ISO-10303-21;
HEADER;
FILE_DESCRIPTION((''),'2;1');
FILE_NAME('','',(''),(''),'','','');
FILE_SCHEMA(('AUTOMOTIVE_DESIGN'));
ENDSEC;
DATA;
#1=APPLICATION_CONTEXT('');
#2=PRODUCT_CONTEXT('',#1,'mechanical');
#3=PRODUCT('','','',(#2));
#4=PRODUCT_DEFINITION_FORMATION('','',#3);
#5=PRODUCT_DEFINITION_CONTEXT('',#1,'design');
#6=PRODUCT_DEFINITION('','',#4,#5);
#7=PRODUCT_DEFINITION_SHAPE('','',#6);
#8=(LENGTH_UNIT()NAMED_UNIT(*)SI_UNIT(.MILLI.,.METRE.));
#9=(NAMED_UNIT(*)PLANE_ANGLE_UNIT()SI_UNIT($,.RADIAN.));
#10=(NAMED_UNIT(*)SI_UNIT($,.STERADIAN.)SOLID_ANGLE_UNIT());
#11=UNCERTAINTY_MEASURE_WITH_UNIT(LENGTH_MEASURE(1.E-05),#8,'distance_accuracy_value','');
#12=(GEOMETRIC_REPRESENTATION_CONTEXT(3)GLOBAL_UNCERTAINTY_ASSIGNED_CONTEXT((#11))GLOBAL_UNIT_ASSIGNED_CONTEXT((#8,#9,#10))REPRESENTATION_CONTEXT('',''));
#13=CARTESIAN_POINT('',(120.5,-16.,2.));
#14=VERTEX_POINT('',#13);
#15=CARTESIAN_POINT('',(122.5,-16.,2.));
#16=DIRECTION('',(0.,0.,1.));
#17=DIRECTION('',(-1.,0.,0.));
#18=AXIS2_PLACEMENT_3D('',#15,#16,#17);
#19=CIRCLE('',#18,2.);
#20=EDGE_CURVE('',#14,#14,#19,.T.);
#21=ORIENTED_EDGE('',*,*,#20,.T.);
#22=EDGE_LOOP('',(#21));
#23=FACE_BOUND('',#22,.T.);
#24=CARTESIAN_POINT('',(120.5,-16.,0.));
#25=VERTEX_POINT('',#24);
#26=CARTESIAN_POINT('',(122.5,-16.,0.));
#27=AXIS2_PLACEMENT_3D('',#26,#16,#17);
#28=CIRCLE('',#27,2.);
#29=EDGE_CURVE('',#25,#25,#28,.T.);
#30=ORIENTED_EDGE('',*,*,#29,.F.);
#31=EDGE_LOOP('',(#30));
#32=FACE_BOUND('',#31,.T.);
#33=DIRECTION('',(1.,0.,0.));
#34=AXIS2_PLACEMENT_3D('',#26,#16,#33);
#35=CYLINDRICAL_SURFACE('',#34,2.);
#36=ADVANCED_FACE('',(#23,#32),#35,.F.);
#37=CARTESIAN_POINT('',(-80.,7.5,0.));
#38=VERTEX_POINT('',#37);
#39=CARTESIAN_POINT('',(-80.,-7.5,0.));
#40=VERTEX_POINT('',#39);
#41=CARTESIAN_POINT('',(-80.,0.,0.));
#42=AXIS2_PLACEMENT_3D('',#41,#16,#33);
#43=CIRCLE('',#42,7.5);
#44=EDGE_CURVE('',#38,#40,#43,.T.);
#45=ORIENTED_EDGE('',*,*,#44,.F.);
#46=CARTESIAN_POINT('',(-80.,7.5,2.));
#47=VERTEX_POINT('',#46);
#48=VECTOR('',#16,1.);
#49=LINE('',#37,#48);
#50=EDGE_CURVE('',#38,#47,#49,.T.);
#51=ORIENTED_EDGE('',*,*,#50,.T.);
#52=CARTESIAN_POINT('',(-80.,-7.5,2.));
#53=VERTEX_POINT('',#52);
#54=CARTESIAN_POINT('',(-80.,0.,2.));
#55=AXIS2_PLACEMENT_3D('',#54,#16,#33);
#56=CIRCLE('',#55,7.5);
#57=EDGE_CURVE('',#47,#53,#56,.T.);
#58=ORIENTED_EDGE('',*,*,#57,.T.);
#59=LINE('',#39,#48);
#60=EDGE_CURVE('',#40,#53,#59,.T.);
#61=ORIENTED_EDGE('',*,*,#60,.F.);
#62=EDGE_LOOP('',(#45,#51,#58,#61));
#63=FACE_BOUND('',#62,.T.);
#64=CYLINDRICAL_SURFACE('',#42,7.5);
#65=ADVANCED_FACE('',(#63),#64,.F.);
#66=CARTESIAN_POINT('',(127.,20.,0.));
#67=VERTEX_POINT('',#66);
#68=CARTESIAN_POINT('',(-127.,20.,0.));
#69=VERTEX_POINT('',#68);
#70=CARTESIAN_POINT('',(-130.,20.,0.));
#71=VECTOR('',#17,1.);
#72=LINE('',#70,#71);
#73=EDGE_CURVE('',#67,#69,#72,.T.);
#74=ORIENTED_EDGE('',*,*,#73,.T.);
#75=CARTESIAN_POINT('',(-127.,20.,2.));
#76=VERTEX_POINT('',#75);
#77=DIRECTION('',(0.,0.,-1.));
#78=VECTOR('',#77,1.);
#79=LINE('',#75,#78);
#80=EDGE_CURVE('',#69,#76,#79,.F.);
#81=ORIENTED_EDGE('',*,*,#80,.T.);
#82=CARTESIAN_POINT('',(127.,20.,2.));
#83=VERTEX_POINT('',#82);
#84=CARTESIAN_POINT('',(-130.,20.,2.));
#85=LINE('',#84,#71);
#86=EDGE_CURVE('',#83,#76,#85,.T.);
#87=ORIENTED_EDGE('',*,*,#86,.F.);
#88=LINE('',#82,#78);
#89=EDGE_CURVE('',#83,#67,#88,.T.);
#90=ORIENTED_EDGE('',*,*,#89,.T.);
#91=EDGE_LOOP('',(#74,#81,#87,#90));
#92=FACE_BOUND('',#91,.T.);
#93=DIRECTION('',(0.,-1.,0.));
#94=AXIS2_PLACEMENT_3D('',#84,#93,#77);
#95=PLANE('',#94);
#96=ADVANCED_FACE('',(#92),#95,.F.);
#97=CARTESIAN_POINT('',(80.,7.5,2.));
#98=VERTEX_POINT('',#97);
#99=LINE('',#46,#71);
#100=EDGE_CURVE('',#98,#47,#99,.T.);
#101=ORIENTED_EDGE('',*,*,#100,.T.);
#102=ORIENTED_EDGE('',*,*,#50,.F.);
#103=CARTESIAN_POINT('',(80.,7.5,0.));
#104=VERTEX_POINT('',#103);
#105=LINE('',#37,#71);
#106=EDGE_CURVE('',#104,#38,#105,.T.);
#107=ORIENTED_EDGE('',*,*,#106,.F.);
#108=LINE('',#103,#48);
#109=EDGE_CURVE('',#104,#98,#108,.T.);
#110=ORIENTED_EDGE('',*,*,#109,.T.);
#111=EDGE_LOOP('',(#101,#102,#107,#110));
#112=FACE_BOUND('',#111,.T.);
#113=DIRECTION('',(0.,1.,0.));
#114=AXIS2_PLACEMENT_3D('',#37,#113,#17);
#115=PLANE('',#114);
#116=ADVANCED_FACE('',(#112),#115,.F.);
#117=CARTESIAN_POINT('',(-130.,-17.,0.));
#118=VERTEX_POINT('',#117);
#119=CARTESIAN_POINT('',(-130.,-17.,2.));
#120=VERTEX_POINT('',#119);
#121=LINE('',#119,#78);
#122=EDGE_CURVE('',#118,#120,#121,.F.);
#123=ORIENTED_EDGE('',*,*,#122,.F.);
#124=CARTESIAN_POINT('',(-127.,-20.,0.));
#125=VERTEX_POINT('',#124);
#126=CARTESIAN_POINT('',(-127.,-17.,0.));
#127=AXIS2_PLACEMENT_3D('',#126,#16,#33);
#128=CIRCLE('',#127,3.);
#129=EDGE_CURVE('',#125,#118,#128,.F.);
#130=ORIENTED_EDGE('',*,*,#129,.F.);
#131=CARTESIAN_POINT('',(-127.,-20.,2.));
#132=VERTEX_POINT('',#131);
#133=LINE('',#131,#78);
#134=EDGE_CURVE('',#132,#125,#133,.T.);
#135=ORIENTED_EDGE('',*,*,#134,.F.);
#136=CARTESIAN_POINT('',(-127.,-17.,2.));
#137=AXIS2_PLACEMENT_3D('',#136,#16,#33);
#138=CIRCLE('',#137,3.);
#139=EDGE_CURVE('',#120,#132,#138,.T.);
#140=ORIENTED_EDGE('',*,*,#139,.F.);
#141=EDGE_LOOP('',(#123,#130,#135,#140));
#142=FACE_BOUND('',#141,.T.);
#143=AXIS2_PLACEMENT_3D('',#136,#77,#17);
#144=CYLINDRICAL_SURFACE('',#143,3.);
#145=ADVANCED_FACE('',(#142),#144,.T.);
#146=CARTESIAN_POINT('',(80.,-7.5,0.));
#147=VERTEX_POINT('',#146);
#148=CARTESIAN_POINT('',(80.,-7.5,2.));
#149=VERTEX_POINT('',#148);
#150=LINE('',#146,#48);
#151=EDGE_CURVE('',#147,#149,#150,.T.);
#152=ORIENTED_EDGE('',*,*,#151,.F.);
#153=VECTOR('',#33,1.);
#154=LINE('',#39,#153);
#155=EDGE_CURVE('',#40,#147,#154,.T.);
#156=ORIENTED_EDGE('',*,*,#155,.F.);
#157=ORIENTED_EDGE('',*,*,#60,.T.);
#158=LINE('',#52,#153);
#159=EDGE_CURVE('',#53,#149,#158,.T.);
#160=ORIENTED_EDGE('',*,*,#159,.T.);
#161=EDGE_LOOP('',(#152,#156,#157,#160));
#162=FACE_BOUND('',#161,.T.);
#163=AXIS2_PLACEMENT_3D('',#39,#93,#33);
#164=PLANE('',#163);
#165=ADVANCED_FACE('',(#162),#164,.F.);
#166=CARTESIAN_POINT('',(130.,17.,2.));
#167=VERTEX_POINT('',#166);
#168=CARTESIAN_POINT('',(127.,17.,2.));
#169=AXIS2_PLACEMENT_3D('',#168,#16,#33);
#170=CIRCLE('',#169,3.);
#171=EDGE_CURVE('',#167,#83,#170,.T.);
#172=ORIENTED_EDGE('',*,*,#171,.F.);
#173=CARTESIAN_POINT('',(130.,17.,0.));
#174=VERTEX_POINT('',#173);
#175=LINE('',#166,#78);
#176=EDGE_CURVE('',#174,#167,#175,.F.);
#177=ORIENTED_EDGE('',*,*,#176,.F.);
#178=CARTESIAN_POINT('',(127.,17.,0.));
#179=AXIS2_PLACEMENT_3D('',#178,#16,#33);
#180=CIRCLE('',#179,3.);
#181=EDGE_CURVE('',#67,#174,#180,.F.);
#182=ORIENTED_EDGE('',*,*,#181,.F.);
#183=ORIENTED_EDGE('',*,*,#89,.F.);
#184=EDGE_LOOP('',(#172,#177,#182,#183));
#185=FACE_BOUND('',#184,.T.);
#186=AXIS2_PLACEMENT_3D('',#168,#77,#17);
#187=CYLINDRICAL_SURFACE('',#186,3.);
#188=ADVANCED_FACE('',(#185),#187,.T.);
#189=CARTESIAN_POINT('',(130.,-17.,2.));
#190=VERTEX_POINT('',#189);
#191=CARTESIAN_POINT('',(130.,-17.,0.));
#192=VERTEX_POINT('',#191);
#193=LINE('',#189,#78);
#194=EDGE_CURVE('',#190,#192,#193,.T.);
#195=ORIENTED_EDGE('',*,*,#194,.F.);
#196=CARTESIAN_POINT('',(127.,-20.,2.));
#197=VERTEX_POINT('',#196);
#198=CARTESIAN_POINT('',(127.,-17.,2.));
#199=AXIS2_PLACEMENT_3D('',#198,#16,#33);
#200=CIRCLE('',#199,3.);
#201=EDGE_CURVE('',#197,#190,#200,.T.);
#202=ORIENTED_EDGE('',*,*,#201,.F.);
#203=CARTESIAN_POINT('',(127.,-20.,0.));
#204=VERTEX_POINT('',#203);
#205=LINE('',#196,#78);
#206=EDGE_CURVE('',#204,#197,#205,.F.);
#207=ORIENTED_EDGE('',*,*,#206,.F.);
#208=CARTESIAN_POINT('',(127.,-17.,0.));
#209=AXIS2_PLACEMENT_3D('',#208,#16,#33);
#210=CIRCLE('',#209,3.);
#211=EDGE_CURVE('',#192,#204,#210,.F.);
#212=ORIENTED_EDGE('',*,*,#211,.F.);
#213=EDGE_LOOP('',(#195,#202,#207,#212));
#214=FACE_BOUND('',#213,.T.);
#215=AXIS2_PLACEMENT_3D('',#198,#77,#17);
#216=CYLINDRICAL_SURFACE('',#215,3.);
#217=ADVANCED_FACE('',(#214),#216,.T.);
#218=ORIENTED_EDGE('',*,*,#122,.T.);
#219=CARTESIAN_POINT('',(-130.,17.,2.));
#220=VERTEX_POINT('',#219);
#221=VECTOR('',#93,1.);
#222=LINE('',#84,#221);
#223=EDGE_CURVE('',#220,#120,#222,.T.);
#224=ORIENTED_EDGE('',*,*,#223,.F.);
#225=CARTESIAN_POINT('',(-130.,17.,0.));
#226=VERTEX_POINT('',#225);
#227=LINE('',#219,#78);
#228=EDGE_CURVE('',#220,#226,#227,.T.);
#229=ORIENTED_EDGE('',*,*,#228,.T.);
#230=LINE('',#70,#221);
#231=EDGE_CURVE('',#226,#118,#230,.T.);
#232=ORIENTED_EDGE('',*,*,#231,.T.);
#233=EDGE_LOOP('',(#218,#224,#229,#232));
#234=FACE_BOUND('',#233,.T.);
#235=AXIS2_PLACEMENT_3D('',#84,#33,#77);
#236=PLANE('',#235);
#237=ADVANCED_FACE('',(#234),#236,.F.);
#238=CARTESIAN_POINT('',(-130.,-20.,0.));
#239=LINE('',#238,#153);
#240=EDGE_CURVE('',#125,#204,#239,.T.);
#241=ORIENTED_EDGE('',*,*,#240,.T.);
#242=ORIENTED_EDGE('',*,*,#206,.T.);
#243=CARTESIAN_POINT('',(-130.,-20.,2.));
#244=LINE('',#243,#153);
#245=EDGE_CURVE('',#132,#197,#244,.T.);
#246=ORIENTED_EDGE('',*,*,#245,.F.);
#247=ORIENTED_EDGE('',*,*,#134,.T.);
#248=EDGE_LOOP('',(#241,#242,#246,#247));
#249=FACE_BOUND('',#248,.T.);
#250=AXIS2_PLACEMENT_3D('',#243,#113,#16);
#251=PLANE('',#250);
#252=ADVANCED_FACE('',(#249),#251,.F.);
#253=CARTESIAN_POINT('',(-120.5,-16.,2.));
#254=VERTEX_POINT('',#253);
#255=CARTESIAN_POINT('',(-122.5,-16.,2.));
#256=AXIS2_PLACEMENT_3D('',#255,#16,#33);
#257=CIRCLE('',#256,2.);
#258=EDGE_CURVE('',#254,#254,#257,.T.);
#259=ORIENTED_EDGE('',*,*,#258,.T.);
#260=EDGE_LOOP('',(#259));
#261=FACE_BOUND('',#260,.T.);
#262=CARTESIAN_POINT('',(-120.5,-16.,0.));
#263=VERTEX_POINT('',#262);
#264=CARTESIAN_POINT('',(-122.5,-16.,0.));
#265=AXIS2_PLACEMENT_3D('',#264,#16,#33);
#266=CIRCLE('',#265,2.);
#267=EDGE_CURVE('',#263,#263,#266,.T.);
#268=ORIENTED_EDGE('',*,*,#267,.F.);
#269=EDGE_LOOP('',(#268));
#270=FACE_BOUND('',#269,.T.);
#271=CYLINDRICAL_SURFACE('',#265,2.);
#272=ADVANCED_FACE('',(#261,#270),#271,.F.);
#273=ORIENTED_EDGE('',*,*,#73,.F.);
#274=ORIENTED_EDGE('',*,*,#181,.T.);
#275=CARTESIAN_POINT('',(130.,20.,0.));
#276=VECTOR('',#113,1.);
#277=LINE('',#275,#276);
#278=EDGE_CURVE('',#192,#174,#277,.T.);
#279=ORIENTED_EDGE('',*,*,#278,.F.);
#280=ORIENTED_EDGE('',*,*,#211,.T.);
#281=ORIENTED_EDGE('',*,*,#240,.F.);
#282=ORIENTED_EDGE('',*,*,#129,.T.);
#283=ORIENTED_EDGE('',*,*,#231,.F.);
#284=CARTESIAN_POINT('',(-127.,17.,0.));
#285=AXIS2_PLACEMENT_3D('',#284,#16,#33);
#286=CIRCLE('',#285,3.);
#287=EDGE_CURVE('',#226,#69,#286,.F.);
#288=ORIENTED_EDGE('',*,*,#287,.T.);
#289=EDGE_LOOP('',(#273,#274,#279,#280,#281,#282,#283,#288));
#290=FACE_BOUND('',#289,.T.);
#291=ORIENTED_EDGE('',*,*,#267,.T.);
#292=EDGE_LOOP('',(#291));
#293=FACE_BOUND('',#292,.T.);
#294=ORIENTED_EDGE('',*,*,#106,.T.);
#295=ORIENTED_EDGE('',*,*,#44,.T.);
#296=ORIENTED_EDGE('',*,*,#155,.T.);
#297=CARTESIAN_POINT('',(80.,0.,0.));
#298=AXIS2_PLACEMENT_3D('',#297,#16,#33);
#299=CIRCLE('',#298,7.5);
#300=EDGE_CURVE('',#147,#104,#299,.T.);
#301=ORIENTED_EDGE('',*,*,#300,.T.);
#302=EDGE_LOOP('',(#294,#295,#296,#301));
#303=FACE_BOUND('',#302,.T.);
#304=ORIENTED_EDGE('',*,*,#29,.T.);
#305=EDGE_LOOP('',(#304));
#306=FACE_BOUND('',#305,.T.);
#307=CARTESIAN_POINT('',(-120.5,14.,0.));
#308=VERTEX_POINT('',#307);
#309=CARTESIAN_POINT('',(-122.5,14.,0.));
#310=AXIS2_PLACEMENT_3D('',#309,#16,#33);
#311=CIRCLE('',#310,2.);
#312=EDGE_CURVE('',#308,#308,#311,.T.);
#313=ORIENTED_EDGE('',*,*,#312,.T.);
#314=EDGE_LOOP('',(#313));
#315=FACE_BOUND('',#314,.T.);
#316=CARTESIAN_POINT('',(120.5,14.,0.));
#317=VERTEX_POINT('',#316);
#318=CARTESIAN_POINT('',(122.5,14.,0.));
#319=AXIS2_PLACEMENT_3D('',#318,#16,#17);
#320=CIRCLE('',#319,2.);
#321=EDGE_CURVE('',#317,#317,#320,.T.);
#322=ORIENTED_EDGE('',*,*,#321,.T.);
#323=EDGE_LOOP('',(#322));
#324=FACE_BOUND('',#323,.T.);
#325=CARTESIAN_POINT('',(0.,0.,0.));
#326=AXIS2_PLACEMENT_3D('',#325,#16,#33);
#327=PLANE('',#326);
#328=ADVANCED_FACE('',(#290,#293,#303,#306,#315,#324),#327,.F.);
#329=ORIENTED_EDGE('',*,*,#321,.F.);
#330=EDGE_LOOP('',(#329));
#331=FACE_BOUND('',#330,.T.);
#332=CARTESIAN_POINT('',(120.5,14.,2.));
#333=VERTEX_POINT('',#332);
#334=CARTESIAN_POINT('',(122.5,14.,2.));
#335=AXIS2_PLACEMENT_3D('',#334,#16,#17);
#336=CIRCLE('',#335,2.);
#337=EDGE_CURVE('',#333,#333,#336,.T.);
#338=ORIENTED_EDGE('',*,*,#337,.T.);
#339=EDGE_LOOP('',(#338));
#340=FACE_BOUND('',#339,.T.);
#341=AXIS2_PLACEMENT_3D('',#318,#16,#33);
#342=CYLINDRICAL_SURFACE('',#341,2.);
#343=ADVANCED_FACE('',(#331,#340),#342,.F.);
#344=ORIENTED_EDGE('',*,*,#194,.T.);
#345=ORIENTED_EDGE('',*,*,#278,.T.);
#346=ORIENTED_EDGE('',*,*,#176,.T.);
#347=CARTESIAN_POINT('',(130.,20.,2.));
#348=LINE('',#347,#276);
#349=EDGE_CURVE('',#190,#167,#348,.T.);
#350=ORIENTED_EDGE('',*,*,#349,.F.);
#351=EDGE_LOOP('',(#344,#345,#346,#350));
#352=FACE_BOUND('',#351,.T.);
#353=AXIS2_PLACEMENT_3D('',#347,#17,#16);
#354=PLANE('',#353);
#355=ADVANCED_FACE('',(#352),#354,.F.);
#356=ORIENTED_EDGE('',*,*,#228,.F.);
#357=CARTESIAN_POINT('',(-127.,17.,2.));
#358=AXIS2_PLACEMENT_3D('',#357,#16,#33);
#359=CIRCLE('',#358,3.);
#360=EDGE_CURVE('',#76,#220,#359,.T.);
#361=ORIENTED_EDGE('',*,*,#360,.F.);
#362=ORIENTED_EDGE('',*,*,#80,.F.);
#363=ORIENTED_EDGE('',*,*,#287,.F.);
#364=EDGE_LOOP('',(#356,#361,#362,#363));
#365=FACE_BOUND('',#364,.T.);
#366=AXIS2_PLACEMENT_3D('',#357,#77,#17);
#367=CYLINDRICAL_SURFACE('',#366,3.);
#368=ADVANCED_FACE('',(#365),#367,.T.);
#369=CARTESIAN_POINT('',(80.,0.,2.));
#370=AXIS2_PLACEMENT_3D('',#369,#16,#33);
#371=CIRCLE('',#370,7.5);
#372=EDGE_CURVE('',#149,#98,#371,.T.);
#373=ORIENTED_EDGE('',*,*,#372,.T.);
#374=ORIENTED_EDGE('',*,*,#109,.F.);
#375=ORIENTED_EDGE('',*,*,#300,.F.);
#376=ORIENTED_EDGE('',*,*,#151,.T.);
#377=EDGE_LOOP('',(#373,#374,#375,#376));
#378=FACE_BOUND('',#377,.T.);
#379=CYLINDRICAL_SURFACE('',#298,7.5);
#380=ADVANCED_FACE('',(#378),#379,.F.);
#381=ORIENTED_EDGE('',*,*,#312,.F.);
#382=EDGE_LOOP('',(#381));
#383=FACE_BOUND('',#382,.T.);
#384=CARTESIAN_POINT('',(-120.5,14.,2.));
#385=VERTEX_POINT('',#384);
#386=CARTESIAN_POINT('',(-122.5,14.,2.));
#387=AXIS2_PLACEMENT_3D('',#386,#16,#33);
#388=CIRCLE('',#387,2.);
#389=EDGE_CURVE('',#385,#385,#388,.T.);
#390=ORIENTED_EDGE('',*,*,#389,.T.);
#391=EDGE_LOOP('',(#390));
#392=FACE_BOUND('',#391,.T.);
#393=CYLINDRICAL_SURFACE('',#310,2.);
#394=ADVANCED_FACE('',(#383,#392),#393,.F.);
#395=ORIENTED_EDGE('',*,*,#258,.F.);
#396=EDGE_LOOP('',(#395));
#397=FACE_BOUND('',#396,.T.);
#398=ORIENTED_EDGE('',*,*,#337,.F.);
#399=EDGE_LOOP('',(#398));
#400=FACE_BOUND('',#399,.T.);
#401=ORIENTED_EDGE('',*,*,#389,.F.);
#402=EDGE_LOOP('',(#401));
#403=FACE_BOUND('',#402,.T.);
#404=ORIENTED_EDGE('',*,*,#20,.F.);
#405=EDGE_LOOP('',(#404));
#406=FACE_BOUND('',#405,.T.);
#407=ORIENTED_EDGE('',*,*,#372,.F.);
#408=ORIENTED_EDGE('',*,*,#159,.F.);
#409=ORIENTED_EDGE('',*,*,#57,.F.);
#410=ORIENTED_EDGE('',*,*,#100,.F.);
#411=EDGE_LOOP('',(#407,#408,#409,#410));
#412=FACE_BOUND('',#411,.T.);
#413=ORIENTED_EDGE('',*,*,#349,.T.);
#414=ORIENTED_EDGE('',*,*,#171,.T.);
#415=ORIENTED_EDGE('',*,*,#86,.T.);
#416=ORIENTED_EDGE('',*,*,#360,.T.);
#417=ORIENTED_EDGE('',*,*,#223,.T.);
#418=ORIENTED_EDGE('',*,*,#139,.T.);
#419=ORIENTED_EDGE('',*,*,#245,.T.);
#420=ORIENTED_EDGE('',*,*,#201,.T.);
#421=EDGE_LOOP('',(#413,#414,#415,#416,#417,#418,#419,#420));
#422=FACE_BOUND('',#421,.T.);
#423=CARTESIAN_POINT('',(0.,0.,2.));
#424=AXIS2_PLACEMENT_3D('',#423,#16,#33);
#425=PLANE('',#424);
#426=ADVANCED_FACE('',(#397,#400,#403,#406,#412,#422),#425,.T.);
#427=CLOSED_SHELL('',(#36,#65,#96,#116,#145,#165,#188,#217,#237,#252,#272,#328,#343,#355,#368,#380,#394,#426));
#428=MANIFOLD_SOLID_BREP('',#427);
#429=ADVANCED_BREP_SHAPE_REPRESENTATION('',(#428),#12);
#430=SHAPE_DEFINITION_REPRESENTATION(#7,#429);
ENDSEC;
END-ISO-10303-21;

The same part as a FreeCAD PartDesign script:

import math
import FreeCAD as App
import Part
import Sketcher
from FreeCAD import Vector


def edges_at(feature, points):
    """Names of the edges that pass closest to the given points."""
    edges = feature.Shape.Edges
    near = lambda p: min(range(len(edges)), key=lambda i: edges[i].distToShape(Part.Vertex(*p))[0])
    return sorted({f"Edge{near(p) + 1}" for p in points})

doc = App.newDocument("Part")
body = doc.addObject("PartDesign::Body", "Body")

# Sketch on XY plane
sketch1 = doc.addObject("Sketcher::SketchObject", "Sketch")
body.addObject(sketch1)
sketch1.AttachmentSupport = (doc.XY_Plane, [""])
sketch1.MapMode = "FlatFace"
sketch1.addGeometry(Part.LineSegment(Vector(-130, 20, 0), Vector(-130, -20, 0)), False)
sketch1.addGeometry(Part.LineSegment(Vector(-130, -20, 0), Vector(130, -20, 0)), False)
sketch1.addGeometry(Part.LineSegment(Vector(130, -20, 0), Vector(130, 20, 0)), False)
sketch1.addGeometry(Part.LineSegment(Vector(130, 20, 0), Vector(-130, 20, 0)), False)
sketch1.addConstraint(Sketcher.Constraint("Coincident", 0, 2, 1, 1))
sketch1.addConstraint(Sketcher.Constraint("Coincident", 1, 2, 2, 1))
sketch1.addConstraint(Sketcher.Constraint("Coincident", 2, 2, 3, 1))
sketch1.addConstraint(Sketcher.Constraint("Coincident", 3, 2, 0, 1))
sketch1.addConstraint(Sketcher.Constraint("Vertical", 0))
sketch1.addConstraint(Sketcher.Constraint("Horizontal", 1))
sketch1.addConstraint(Sketcher.Constraint("Vertical", 2))
sketch1.addConstraint(Sketcher.Constraint("Horizontal", 3))
sketch1.addConstraint(Sketcher.Constraint("Symmetric", 0, 2, 2, 2, -1, 1))
sketch1.addConstraint(Sketcher.Constraint("DistanceX", 1, 1, 1, 2, 260.0))
sketch1.addConstraint(Sketcher.Constraint("DistanceY", 0, 2, 0, 1, 40.0))
pad1 = doc.addObject("PartDesign::Pad", "Pad")
body.addObject(pad1)
pad1.Profile = sketch1
pad1.Length = 2

# Sketch on XY plane
sketch2 = doc.addObject("Sketcher::SketchObject", "Sketch001")
body.addObject(sketch2)
sketch2.AttachmentSupport = (doc.XY_Plane, [""])
sketch2.MapMode = "FlatFace"
sketch2.AttachmentOffset = App.Placement(Vector(0, 0, 2), App.Rotation())
sketch2.addGeometry(Part.Circle(Vector(-122.5, 14, 0), Vector(0, 0, 1), 2), False)
sketch2.addGeometry(Part.Circle(Vector(-122.5, -16, 0), Vector(0, 0, 1), 2), False)
sketch2.addGeometry(Part.Circle(Vector(122.5, -16, 0), Vector(0, 0, 1), 2), False)
sketch2.addGeometry(Part.Circle(Vector(122.5, 14, 0), Vector(0, 0, 1), 2), False)
sketch2.addConstraint(Sketcher.Constraint("Equal", 0, 1))
sketch2.addConstraint(Sketcher.Constraint("Equal", 1, 2))
sketch2.addConstraint(Sketcher.Constraint("Equal", 2, 3))
sketch2.addConstraint(Sketcher.Constraint("Symmetric", 1, 3, 2, 3, -2))
sketch2.addConstraint(Sketcher.Constraint("Symmetric", 0, 3, 3, 3, -2))
sketch2.addConstraint(Sketcher.Constraint("Vertical", 0, 3, 1, 3))
sketch2.addConstraint(Sketcher.Constraint("Diameter", 0, 4.0))
sketch2.addConstraint(Sketcher.Constraint("DistanceY", -1, 1, 0, 3, 14.0))
sketch2.addConstraint(Sketcher.Constraint("DistanceY", 1, 3, -1, 1, 16.0))
sketch2.addConstraint(Sketcher.Constraint("DistanceX", 1, 3, 2, 3, 245.0))
pocket1 = doc.addObject("PartDesign::Pocket", "Pocket")
body.addObject(pocket1)
pocket1.Profile = sketch2
pocket1.Length = 2

# Sketch on XY plane
sketch3 = doc.addObject("Sketcher::SketchObject", "Sketch002")
body.addObject(sketch3)
sketch3.AttachmentSupport = (doc.XY_Plane, [""])
sketch3.MapMode = "FlatFace"
sketch3.AttachmentOffset = App.Placement(Vector(0, 0, 2), App.Rotation())
sketch3.addGeometry(Part.LineSegment(Vector(80, 8, 0), Vector(-80, 8, 0)), False)
sketch3.addGeometry(Part.ArcOfCircle(Part.Circle(Vector(-80, 0, 0), Vector(0, 0, 1), 8), math.radians(90), math.radians(270)), False)
sketch3.addGeometry(Part.LineSegment(Vector(-80, -8, 0), Vector(80, -8, 0)), False)
sketch3.addGeometry(Part.ArcOfCircle(Part.Circle(Vector(80, 0, 0), Vector(0, 0, 1), 8), math.radians(-90), math.radians(90)), False)
sketch3.addConstraint(Sketcher.Constraint("Tangent", 0, 2, 1, 1))
sketch3.addConstraint(Sketcher.Constraint("Tangent", 1, 2, 2, 1))
sketch3.addConstraint(Sketcher.Constraint("Tangent", 2, 2, 3, 1))
sketch3.addConstraint(Sketcher.Constraint("Tangent", 3, 2, 0, 1))
sketch3.addConstraint(Sketcher.Constraint("Horizontal", 0))
sketch3.addConstraint(Sketcher.Constraint("Horizontal", 2))
sketch3.addConstraint(Sketcher.Constraint("Symmetric", 1, 3, 3, 3, -1, 1))
sketch3.addConstraint(Sketcher.Constraint("Radius", 1, 7.5))
sketch3.addConstraint(Sketcher.Constraint("DistanceX", 0, 2, 0, 1, 160.0))
pocket2 = doc.addObject("PartDesign::Pocket", "Pocket001")
body.addObject(pocket2)
pocket2.Profile = sketch3
pocket2.Type = "ThroughAll"
doc.recompute()

fillet = doc.addObject("PartDesign::Fillet", "Fillet")
body.addObject(fillet)
fillet.Base = (pocket2, edges_at(pocket2, [
    (130, -20, 1),
    (-130, -20, 1),
    (-130, 20, 1),
    (130, 20, 1),
]))
fillet.Radius = 3

doc.recompute()
